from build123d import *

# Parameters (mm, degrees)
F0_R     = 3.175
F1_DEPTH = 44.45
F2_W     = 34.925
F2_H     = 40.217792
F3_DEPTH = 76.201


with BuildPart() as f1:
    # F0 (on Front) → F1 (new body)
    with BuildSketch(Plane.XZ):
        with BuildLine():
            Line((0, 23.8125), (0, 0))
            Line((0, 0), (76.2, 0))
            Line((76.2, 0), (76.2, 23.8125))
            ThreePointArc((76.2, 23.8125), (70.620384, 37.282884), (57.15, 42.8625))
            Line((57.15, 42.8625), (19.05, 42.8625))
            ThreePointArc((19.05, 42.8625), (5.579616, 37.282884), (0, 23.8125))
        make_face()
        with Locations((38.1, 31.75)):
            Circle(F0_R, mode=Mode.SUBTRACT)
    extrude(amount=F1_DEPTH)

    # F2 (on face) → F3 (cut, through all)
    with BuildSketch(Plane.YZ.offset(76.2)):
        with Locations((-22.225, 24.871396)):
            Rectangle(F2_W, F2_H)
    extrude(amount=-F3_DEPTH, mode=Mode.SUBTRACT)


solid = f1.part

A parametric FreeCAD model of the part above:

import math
import FreeCAD as App
import Part
import Sketcher
from FreeCAD import Vector
Q = App.Units.Quantity


def add_polygon(sketch, points):
    """Adds a closed chain of lines whose ends are joined by coincident constraints."""
    first, n = sketch.GeometryCount, len(points)
    for a, b in zip(points, points[1:] + points[:1]):
        sketch.addGeometry(Part.LineSegment(App.Vector(*a, 0), App.Vector(*b, 0)), False)
    for i in range(n):
        sketch.addConstraint(Sketcher.Constraint("Coincident", first + i, 2, first + (i + 1) % n, 1))

doc = App.newDocument("Part")
body = doc.addObject("PartDesign::Body", "Body")

# Sketch on XZ plane
sketch1 = body.newObject("Sketcher::SketchObject", "Sketch")
sketch1.AttachmentSupport = (doc.getObject("XZ_Plane"), [""])
sketch1.MapMode = "FlatFace"
sketch1.addGeometry([
    Part.LineSegment(Vector(0, 23.8, 0), Vector(0, 0, 0)),  # 0
    Part.LineSegment(Vector(0, 0, 0), Vector(76.2, 0, 0)),  # 1
    Part.LineSegment(Vector(76.2, 0, 0), Vector(76.2, 23.8, 0)),  # 2
    Part.ArcOfCircle(Part.Circle(Vector(57.1, 23.8, 0), Vector(0, 0, 1), 19.1), math.radians(0), math.radians(90)),  # 3
    Part.LineSegment(Vector(57.1, 42.9, 0), Vector(19.1, 42.9, 0)),  # 4
    Part.ArcOfCircle(Part.Circle(Vector(19.1, 23.8, 0), Vector(0, 0, 1), 19.1), math.radians(90), math.radians(180)),  # 5
    Part.Circle(Vector(38.1, 31.8, 0), Vector(0, 0, 1), 3.2),  # 6
], False)
sketch1.addConstraint([
    Sketcher.Constraint("Coincident", 0, 2, 1, 1),
    Sketcher.Constraint("Coincident", 1, 2, 2, 1),
    Sketcher.Constraint("Tangent", 2, 2, 3, 1),
    Sketcher.Constraint("Tangent", 3, 2, 4, 1),
    Sketcher.Constraint("Tangent", 4, 2, 5, 1),
    Sketcher.Constraint("Tangent", 5, 2, 0, 1),
    Sketcher.Constraint("Vertical", 0),
    Sketcher.Constraint("Horizontal", 1),
    Sketcher.Constraint("Vertical", 2),
    Sketcher.Constraint("Horizontal", 4),
    Sketcher.Constraint("Coincident", 0, 2, -1, 1),
    Sketcher.Constraint("Equal", 3, 5),
    Sketcher.Constraint("Diameter", 6, Q("0.25 in")),
    Sketcher.Constraint("DistanceX", 1, 1, 1, 2, Q("3 in")),
    Sketcher.Constraint("Radius", 3, Q("0.75 in")),
    Sketcher.Constraint("DistanceX", -1, 1, 6, 3, Q("1.5 in")),
    Sketcher.Constraint("DistanceY", 0, 2, 0, 1, Q("0.9375 in")),
    Sketcher.Constraint("DistanceY", -1, 1, 6, 3, Q("1.25 in")),
])
pad1 = body.newObject("PartDesign::Pad", "Pad")
pad1.Profile = sketch1
pad1.Length = Q("1.75 in")

# Sketch on YZ plane
sketch2 = body.newObject("Sketcher::SketchObject", "Sketch001")
sketch2.AttachmentSupport = (doc.getObject("YZ_Plane"), [""])
sketch2.MapMode = "FlatFace"
sketch2.AttachmentOffset = App.Placement(Vector(0, 0, 3 * 25.4), App.Rotation())
add_polygon(sketch2, [(-40, 45), (-40, 5), (-5, 5), (-5, 45)])  # lines 0-3
sketch2.addConstraint([
    Sketcher.Constraint("Vertical", 0),
    Sketcher.Constraint("Horizontal", 1),
    Sketcher.Constraint("Vertical", 2),
    Sketcher.Constraint("Horizontal", 3),
    Sketcher.Constraint("DistanceX", 1, 1, 1, 2, Q("1.375 in")),
    Sketcher.Constraint("DistanceX", 0, 2, -1, 1, Q("1.5625 in")),
    Sketcher.Constraint("DistanceY", -1, 1, 0, 2, Q("0.1875 in")),
    Sketcher.Constraint("DistanceY", 0, 2, 0, 1, 40.217792),
])
pocket1 = body.newObject("PartDesign::Pocket", "Pocket")
pocket1.Profile = sketch2
pocket1.Type = "ThroughAll"

doc.recompute()
